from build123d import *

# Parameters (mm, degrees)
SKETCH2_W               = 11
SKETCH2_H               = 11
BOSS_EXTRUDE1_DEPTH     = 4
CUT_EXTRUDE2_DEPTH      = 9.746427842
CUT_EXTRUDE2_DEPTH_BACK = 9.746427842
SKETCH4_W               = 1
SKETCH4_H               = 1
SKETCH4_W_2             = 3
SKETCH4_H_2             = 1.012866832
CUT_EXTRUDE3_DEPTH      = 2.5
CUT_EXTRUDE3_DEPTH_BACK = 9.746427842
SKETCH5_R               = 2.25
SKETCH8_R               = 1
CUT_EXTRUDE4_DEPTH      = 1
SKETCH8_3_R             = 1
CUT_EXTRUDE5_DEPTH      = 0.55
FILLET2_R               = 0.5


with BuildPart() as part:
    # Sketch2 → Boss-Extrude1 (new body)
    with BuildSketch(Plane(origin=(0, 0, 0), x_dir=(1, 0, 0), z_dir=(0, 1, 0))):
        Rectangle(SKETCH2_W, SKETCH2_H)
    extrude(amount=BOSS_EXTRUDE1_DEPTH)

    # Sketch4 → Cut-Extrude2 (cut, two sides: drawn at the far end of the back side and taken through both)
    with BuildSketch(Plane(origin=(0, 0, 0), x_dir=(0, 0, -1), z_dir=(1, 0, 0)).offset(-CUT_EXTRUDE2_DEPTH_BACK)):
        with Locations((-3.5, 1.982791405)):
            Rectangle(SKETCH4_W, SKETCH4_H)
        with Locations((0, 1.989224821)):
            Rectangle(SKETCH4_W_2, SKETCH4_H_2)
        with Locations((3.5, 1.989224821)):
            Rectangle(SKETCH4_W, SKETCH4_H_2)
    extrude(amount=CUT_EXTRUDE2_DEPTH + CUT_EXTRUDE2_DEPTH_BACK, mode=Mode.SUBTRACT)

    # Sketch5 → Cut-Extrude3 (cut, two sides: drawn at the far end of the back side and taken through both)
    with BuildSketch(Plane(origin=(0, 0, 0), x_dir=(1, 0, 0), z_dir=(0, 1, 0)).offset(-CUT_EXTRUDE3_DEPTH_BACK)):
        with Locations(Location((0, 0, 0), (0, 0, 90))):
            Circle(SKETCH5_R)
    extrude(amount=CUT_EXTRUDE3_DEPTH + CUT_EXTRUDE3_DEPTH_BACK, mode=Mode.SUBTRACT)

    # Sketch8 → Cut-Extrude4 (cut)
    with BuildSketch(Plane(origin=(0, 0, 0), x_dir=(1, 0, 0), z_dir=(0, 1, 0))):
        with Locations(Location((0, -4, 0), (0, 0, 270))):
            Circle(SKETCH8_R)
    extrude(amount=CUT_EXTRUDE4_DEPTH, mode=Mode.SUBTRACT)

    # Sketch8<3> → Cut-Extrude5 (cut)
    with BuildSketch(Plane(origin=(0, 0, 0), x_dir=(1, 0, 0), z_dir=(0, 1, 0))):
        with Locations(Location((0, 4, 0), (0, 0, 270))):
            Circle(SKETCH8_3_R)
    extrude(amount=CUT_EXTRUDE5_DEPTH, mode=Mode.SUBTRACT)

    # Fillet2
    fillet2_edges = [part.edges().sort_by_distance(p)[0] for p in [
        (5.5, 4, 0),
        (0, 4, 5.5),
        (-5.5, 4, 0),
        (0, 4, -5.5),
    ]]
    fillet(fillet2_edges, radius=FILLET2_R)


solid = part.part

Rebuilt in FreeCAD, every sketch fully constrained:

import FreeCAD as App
import Part
import Sketcher
from FreeCAD import Vector
Q = App.Units.Quantity


def edges_at(feature, points):
    """Names of the edges that pass closest to the given points."""
    edges = feature.Shape.Edges
    near = lambda p: min(range(len(edges)), key=lambda i: edges[i].distToShape(Part.Vertex(*p))[0])
    return sorted({f"Edge{near(p) + 1}" for p in points})

doc = App.newDocument("Part")
body = doc.addObject("PartDesign::Body", "Body")

# Sketch on XZ plane
sketch1 = body.newObject("Sketcher::SketchObject", "Sketch")
sketch1.AttachmentSupport = (doc.getObject("XZ_Plane"), [""])
sketch1.MapMode = "FlatFace"
sketch1.addGeometry(Part.LineSegment(Vector(-5.5, -5.5, 0), Vector(-5.5, 5.5, 0)), False)
sketch1.addGeometry(Part.LineSegment(Vector(-5.5, 5.5, 0), Vector(5.5, 5.5, 0)), False)
sketch1.addGeometry(Part.LineSegment(Vector(5.5, 5.5, 0), Vector(5.5, -5.5, 0)), False)
sketch1.addGeometry(Part.LineSegment(Vector(5.5, -5.5, 0), Vector(-5.5, -5.5, 0)), False)
sketch1.addConstraint(Sketcher.Constraint("Coincident", 0, 2, 1, 1))
sketch1.addConstraint(Sketcher.Constraint("Coincident", 1, 2, 2, 1))
sketch1.addConstraint(Sketcher.Constraint("Coincident", 2, 2, 3, 1))
sketch1.addConstraint(Sketcher.Constraint("Coincident", 3, 2, 0, 1))
sketch1.addConstraint(Sketcher.Constraint("Vertical", 0))
sketch1.addConstraint(Sketcher.Constraint("Horizontal", 1))
sketch1.addConstraint(Sketcher.Constraint("Vertical", 2))
sketch1.addConstraint(Sketcher.Constraint("Horizontal", 3))
sketch1.addConstraint(Sketcher.Constraint("Symmetric", 0, 2, 2, 2, -1, 1))
sketch1.addConstraint(Sketcher.Constraint("Equal", 3, 0))
sketch1.addConstraint(Sketcher.Constraint("DistanceX", 1, 1, 1, 2, Q("11 mm")))
pad1 = body.newObject("PartDesign::Pad", "Pad")
pad1.Profile = sketch1
pad1.Length = 4
pad1.Reversed = True

# Sketch on YZ plane
sketch2 = body.newObject("Sketcher::SketchObject", "Sketch001")
sketch2.AttachmentSupport = (doc.getObject("YZ_Plane"), [""])
sketch2.MapMode = "FlatFace"
sketch2.addGeometry(Part.LineSegment(Vector(2.482791, 4, 0), Vector(1.482791, 4, 0)), False)
sketch2.addGeometry(Part.LineSegment(Vector(1.482791, 4, 0), Vector(1.482791, 3, 0)), False)
sketch2.addGeometry(Part.LineSegment(Vector(1.482791, 3, 0), Vector(2.482791, 3, 0)), False)
sketch2.addGeometry(Part.LineSegment(Vector(2.482791, 3, 0), Vector(2.482791, 4, 0)), False)
sketch2.addGeometry(Part.LineSegment(Vector(2.495658, 1.5, 0), Vector(1.482791, 1.5, 0)), False)
sketch2.addGeometry(Part.LineSegment(Vector(1.482791, 1.5, 0), Vector(1.482791, -1.5, 0)), False)
sketch2.addGeometry(Part.LineSegment(Vector(1.482791, -1.5, 0), Vector(2.495658, -1.5, 0)), False)
sketch2.addGeometry(Part.LineSegment(Vector(2.495658, -1.5, 0), Vector(2.495658, 1.5, 0)), False)
sketch2.addGeometry(Part.LineSegment(Vector(2.495658, -3, 0), Vector(1.482791, -3, 0)), False)
sketch2.addGeometry(Part.LineSegment(Vector(1.482791, -3, 0), Vector(1.482791, -4, 0)), False)
sketch2.addGeometry(Part.LineSegment(Vector(1.482791, -4, 0), Vector(2.495658, -4, 0)), False)
sketch2.addGeometry(Part.LineSegment(Vector(2.495658, -4, 0), Vector(2.495658, -3, 0)), False)
sketch2.addConstraint(Sketcher.Constraint("Coincident", 0, 2, 1, 1))
sketch2.addConstraint(Sketcher.Constraint("Coincident", 1, 2, 2, 1))
sketch2.addConstraint(Sketcher.Constraint("Coincident", 2, 2, 3, 1))
sketch2.addConstraint(Sketcher.Constraint("Coincident", 3, 2, 0, 1))
sketch2.addConstraint(Sketcher.Constraint("Coincident", 4, 2, 5, 1))
sketch2.addConstraint(Sketcher.Constraint("Coincident", 5, 2, 6, 1))
sketch2.addConstraint(Sketcher.Constraint("Coincident", 6, 2, 7, 1))
sketch2.addConstraint(Sketcher.Constraint("Coincident", 7, 2, 4, 1))
sketch2.addConstraint(Sketcher.Constraint("Coincident", 8, 2, 9, 1))
sketch2.addConstraint(Sketcher.Constraint("Coincident", 9, 2, 10, 1))
sketch2.addConstraint(Sketcher.Constraint("Coincident", 10, 2, 11, 1))
sketch2.addConstraint(Sketcher.Constraint("Coincident", 11, 2, 8, 1))
sketch2.addConstraint(Sketcher.Constraint("Horizontal", 0))
sketch2.addConstraint(Sketcher.Constraint("Vertical", 1))
sketch2.addConstraint(Sketcher.Constraint("Horizontal", 2))
sketch2.addConstraint(Sketcher.Constraint("Vertical", 3))
sketch2.addConstraint(Sketcher.Constraint("Horizontal", 4))
sketch2.addConstraint(Sketcher.Constraint("Vertical", 5))
sketch2.addConstraint(Sketcher.Constraint("Horizontal", 6))
sketch2.addConstraint(Sketcher.Constraint("Vertical", 7))
sketch2.addConstraint(Sketcher.Constraint("Horizontal", 8))
sketch2.addConstraint(Sketcher.Constraint("Vertical", 9))
sketch2.addConstraint(Sketcher.Constraint("Horizontal", 10))
sketch2.addConstraint(Sketcher.Constraint("Vertical", 11))
sketch2.addConstraint(Sketcher.Constraint("Symmetric", 1, 2, 8, 2, -1))
sketch2.addConstraint(Sketcher.Constraint("Vertical", 1, 2, 4, 2))
sketch2.addConstraint(Sketcher.Constraint("Vertical", 7, 2, 10, 2))
sketch2.addConstraint(Sketcher.Constraint("Equal", 2, 1))
sketch2.addConstraint(Sketcher.Constraint("Equal", 3, 9))
sketch2.addConstraint(Sketcher.Constraint("DistanceX", 0, 2, 0, 1, Q("1 mm")))
sketch2.addConstraint(Sketcher.Constraint("DistanceY", 5, 2, 5, 1, Q("3 mm")))
sketch2.addConstraint(Sketcher.Constraint("DistanceY", -1, 1, 0, 2, Q("4 mm")))
sketch2.addConstraint(Sketcher.Constraint("DistanceY", -1, 1, 4, 2, Q("1.5 mm")))
sketch2.addConstraint(Sketcher.Constraint("DistanceX", 4, 2, 4, 1, Q("1.012867 mm")))
sketch2.addConstraint(Sketcher.Constraint("DistanceX", -1, 1, 0, 2, Q("1.482791 mm")))
pocket1 = body.newObject("PartDesign::Pocket", "Pocket")
pocket1.Profile = sketch2
pocket1.Type = "ThroughAll"
pocket1.Midplane = True

# Sketch on XZ plane
sketch3 = body.newObject("Sketcher::SketchObject", "Sketch002")
sketch3.AttachmentSupport = (doc.getObject("XZ_Plane"), [""])
sketch3.MapMode = "FlatFace"
sketch3.addGeometry(Part.Circle(Vector(0, 0, 0), Vector(0, 0, 1), 2.25), False)
sketch3.addConstraint(Sketcher.Constraint("Coincident", 0, 3, -1, 1))
sketch3.addConstraint(Sketcher.Constraint("Diameter", 0, Q("4.5 mm")))
pocket2 = body.newObject("PartDesign::Pocket", "Pocket001")
pocket2.Profile = sketch3
pocket2.Type = "TwoLengths"
pocket2.Length = 2.5
pocket2.Length2 = 9.746428

# Sketch on XZ plane
sketch4 = body.newObject("Sketcher::SketchObject", "Sketch003")
sketch4.AttachmentSupport = (doc.getObject("XZ_Plane"), [""])
sketch4.MapMode = "FlatFace"
sketch4.addGeometry(Part.Circle(Vector(0, 4, 0), Vector(0, 0, 1), 1), False)
sketch4.addConstraint(Sketcher.Constraint("PointOnObject", 0, 3, -2))
sketch4.addConstraint(Sketcher.Constraint("Diameter", 0, Q("2 mm")))
sketch4.addConstraint(Sketcher.Constraint("DistanceY", -1, 1, 0, 3, Q("4 mm")))
pocket3 = body.newObject("PartDesign::Pocket", "Pocket002")
pocket3.Profile = sketch4
pocket3.Length = 1

# Sketch on XZ plane
sketch5 = body.newObject("Sketcher::SketchObject", "Sketch004")
sketch5.AttachmentSupport = (doc.getObject("XZ_Plane"), [""])
sketch5.MapMode = "FlatFace"
sketch5.addGeometry(Part.Circle(Vector(0, -4, 0), Vector(0, 0, 1), 1), False)
sketch5.addConstraint(Sketcher.Constraint("PointOnObject", 0, 3, -2))
sketch5.addConstraint(Sketcher.Constraint("Diameter", 0, Q("2 mm")))
sketch5.addConstraint(Sketcher.Constraint("DistanceY", 0, 3, -1, 1, Q("4 mm")))
pocket4 = body.newObject("PartDesign::Pocket", "Pocket003")
pocket4.Profile = sketch5
pocket4.Length = 0.55
doc.recompute()

fillet = body.newObject("PartDesign::Fillet", "Fillet")
fillet.Base = (pocket4, edges_at(pocket4, [
    (5.5, 4, 0),
    (0, 4, 5.5),
    (-5.5, 4, 0),
    (0, 4, -5.5),
]))
fillet.Radius = 0.5

doc.recompute()
